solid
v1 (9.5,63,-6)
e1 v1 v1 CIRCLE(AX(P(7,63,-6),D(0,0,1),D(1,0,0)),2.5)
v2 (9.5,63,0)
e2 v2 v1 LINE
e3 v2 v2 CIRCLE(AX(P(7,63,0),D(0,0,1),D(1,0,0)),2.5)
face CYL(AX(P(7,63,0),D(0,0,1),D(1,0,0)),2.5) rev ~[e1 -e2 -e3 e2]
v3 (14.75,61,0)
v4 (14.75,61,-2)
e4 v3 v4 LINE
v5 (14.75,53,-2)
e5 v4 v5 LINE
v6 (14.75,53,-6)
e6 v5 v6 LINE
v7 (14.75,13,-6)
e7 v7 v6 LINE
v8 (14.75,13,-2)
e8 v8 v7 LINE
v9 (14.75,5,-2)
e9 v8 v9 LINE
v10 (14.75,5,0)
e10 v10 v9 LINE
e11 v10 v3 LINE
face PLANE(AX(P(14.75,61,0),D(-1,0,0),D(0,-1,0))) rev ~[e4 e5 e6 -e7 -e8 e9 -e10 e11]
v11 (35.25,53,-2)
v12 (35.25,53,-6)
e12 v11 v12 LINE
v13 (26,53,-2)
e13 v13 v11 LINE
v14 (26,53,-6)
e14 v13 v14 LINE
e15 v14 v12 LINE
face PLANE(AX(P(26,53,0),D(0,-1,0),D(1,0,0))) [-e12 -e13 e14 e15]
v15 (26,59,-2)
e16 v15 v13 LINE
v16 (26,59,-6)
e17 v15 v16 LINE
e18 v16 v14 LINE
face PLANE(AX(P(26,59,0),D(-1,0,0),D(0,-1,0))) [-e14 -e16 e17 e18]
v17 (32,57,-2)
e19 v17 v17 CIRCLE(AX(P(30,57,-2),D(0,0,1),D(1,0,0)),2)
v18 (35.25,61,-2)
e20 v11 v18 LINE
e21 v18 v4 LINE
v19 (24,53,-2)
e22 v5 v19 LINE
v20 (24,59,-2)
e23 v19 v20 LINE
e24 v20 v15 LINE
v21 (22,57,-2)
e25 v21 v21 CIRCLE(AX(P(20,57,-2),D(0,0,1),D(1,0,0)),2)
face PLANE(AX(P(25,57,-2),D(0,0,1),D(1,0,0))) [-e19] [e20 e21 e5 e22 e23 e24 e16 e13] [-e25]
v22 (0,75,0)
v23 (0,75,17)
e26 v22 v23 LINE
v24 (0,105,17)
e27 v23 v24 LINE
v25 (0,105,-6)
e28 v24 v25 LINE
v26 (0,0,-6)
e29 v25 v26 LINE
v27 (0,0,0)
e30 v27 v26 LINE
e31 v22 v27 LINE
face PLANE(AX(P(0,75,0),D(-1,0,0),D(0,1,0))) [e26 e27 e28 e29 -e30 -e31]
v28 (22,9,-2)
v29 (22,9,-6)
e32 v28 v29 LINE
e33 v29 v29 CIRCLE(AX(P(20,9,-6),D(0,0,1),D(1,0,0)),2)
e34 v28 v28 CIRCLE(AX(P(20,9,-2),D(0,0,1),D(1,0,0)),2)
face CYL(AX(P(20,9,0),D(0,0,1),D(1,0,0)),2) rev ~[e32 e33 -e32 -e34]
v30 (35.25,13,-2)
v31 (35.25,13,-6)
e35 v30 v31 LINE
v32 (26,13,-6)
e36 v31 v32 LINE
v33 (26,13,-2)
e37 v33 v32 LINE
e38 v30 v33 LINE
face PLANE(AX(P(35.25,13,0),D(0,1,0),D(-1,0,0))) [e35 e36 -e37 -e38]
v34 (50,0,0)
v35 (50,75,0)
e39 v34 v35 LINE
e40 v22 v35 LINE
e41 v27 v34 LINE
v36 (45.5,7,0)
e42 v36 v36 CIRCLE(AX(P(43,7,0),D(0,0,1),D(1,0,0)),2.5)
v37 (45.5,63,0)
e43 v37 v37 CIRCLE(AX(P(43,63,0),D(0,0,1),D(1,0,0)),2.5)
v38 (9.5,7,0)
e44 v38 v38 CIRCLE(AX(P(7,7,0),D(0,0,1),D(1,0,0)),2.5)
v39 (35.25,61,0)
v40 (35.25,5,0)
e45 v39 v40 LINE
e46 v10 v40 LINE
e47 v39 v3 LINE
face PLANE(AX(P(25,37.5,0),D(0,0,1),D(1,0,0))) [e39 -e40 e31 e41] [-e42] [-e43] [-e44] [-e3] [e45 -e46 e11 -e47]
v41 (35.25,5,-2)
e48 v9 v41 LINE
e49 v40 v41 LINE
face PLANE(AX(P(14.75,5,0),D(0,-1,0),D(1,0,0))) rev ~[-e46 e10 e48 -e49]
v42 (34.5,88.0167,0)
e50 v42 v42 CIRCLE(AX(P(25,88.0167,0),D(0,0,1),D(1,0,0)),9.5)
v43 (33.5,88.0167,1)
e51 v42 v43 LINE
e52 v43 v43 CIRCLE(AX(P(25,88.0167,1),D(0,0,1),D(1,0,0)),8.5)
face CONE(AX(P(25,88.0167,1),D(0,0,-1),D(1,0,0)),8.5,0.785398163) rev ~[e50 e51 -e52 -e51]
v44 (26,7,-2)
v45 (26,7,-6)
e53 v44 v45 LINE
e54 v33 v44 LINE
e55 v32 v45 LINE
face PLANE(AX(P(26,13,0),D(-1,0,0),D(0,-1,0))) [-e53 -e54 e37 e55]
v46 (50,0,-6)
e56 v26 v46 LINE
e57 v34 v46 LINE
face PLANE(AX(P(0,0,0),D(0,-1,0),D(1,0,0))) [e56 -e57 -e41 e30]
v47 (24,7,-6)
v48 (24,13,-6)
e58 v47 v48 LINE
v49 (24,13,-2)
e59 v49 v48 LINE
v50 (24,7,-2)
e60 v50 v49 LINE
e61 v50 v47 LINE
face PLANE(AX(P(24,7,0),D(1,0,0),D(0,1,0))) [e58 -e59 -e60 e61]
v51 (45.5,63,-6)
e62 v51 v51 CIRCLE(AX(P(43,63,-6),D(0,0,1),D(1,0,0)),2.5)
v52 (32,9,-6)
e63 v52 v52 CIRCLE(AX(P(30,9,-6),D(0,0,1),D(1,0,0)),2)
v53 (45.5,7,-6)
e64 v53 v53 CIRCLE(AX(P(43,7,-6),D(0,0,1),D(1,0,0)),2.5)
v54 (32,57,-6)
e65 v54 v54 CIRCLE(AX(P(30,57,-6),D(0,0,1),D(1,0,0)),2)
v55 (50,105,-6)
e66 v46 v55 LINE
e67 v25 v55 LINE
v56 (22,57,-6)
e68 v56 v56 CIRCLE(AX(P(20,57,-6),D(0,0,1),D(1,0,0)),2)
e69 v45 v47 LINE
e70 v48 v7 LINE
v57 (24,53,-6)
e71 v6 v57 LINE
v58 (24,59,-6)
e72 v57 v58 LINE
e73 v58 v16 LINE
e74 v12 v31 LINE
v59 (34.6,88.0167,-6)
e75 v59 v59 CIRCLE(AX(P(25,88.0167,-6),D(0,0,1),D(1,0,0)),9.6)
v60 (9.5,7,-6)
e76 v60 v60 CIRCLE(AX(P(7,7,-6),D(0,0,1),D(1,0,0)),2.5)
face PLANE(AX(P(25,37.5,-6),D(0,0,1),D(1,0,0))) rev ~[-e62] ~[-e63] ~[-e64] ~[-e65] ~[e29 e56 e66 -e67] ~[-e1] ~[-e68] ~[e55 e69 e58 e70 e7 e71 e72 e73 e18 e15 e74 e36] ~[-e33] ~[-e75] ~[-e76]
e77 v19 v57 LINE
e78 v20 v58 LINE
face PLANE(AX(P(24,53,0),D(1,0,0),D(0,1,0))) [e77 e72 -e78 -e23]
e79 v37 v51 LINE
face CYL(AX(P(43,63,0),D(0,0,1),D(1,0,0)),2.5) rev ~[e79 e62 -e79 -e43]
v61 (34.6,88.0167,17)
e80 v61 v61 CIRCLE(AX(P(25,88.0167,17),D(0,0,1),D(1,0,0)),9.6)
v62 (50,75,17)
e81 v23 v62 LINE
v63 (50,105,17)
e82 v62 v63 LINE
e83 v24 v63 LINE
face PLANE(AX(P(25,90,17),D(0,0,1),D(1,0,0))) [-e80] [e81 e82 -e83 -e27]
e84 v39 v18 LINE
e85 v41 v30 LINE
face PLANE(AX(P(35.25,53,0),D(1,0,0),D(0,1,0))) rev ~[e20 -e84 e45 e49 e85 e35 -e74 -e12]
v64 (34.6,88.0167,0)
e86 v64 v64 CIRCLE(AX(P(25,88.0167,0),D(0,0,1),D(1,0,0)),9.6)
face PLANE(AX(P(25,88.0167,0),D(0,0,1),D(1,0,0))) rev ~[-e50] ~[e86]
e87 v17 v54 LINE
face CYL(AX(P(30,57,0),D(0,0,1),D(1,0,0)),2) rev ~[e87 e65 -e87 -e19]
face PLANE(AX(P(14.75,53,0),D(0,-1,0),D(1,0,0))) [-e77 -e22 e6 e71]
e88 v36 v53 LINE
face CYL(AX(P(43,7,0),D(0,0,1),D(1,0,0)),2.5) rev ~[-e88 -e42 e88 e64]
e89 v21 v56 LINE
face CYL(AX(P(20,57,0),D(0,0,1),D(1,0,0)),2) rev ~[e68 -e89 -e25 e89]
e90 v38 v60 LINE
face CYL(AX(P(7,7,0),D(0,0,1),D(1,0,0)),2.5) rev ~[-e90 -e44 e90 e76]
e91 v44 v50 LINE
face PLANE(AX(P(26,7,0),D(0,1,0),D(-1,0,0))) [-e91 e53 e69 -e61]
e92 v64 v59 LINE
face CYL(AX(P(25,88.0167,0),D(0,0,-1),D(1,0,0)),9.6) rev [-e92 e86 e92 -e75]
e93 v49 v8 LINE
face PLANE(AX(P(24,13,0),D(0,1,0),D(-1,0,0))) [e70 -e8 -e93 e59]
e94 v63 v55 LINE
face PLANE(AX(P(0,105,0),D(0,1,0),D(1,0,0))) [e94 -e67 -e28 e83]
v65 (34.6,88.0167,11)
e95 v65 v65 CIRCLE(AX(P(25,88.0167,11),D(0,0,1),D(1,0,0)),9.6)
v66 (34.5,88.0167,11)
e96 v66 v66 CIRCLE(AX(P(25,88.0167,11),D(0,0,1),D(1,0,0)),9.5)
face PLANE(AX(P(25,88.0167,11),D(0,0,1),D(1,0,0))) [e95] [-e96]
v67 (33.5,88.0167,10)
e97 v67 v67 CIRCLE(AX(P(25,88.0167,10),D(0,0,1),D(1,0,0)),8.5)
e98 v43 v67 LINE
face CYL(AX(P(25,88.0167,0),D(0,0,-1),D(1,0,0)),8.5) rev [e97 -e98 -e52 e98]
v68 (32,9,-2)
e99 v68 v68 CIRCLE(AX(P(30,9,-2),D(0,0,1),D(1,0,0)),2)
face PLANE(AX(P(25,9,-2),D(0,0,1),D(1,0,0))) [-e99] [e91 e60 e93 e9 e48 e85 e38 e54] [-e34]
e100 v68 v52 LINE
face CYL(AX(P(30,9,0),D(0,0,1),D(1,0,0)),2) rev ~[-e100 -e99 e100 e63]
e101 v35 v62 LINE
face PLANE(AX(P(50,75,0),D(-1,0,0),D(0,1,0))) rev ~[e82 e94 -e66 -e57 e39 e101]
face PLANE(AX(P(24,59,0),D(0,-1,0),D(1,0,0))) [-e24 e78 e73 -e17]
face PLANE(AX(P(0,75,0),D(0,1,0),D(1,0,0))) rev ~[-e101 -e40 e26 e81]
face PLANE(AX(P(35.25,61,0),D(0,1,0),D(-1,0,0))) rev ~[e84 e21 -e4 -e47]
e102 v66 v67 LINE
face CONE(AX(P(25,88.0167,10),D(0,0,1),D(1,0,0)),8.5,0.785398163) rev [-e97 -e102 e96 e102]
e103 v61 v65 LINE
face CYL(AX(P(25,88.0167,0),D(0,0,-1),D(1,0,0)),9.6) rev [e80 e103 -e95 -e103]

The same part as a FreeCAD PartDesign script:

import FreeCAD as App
import Part
import Sketcher


def edges_at(feature, points):
    """Names of the edges that pass closest to the given points."""
    edges = feature.Shape.Edges
    near = lambda p: min(range(len(edges)), key=lambda i: edges[i].distToShape(Part.Vertex(*p))[0])
    return sorted({f"Edge{near(p) + 1}" for p in points})

doc = App.newDocument("Part")
body = doc.addObject("PartDesign::Body", "Body")

# Sketch on XY plane
sketch1 = body.newObject("Sketcher::SketchObject", "Sketch")
sketch1.AttachmentSupport = (doc.getObject("XY_Plane"), [""])
sketch1.MapMode = "FlatFace"
sketch1.addGeometry([
    Part.LineSegment(App.Vector(0, 0, 0), App.Vector(50, 0, 0)),  # 0
    Part.LineSegment(App.Vector(50, 0, 0), App.Vector(50, 105, 0)),  # 1
    Part.LineSegment(App.Vector(50, 105, 0), App.Vector(0, 105, 0)),  # 2
    Part.LineSegment(App.Vector(0, 105, 0), App.Vector(0, 0, 0)),  # 3
    Part.Circle(App.Vector(7, 7, 0), App.Vector(0, 0, 1), 2.5),  # 4
    Part.Circle(App.Vector(20, 9, 0), App.Vector(0, 0, 1), 2),  # 5
    Part.Circle(App.Vector(30, 9, 0), App.Vector(0, 0, 1), 2),  # 6
    Part.Circle(App.Vector(43, 7, 0), App.Vector(0, 0, 1), 2.5),  # 7
    Part.LineSegment(App.Vector(35.2, 53, 0), App.Vector(35.2, 13, 0)),  # 8
    Part.LineSegment(App.Vector(35.2, 13, 0), App.Vector(26, 13, 0)),  # 9
    Part.LineSegment(App.Vector(26, 13, 0), App.Vector(26, 7, 0)),  # 10
    Part.LineSegment(App.Vector(26, 7, 0), App.Vector(24, 7, 0)),  # 11
    Part.LineSegment(App.Vector(24, 7, 0), App.Vector(24, 13, 0)),  # 12
    Part.LineSegment(App.Vector(24, 13, 0), App.Vector(14.8, 13, 0)),  # 13
    Part.LineSegment(App.Vector(14.8, 13, 0), App.Vector(14.8, 53, 0)),  # 14
    Part.LineSegment(App.Vector(14.8, 53, 0), App.Vector(24, 53, 0)),  # 15
    Part.LineSegment(App.Vector(24, 53, 0), App.Vector(24, 59, 0)),  # 16
    Part.LineSegment(App.Vector(24, 59, 0), App.Vector(26, 59, 0)),  # 17
    Part.LineSegment(App.Vector(26, 59, 0), App.Vector(26, 53, 0)),  # 18
    Part.LineSegment(App.Vector(26, 53, 0), App.Vector(35.2, 53, 0)),  # 19
    Part.Circle(App.Vector(7, 63, 0), App.Vector(0, 0, 1), 2.5),  # 20
    Part.Circle(App.Vector(20, 57, 0), App.Vector(0, 0, 1), 2),  # 21
    Part.Circle(App.Vector(30, 57, 0), App.Vector(0, 0, 1), 2),  # 22
    Part.Circle(App.Vector(43, 63, 0), App.Vector(0, 0, 1), 2.5),  # 23
    Part.Circle(App.Vector(25, 88, 0), App.Vector(0, 0, 1), 9.6),  # 24
], False)
sketch1.addConstraint([
    Sketcher.Constraint("Coincident", 0, 2, 1, 1),
    Sketcher.Constraint("Coincident", 1, 2, 2, 1),
    Sketcher.Constraint("Coincident", 2, 2, 3, 1),
    Sketcher.Constraint("Coincident", 3, 2, 0, 1),
    Sketcher.Constraint("Coincident", 8, 2, 9, 1),
    Sketcher.Constraint("Coincident", 9, 2, 10, 1),
    Sketcher.Constraint("Coincident", 10, 2, 11, 1),
    Sketcher.Constraint("Coincident", 11, 2, 12, 1),
    Sketcher.Constraint("Coincident", 12, 2, 13, 1),
    Sketcher.Constraint("Coincident", 13, 2, 14, 1),
    Sketcher.Constraint("Coincident", 14, 2, 15, 1),
    Sketcher.Constraint("Coincident", 15, 2, 16, 1),
    Sketcher.Constraint("Coincident", 16, 2, 17, 1),
    Sketcher.Constraint("Coincident", 17, 2, 18, 1),
    Sketcher.Constraint("Coincident", 18, 2, 19, 1),
    Sketcher.Constraint("Coincident", 19, 2, 8, 1),
    Sketcher.Constraint("Horizontal", 0),
    Sketcher.Constraint("Vertical", 1),
    Sketcher.Constraint("Horizontal", 2),
    Sketcher.Constraint("Vertical", 3),
    Sketcher.Constraint("Vertical", 8),
    Sketcher.Constraint("Horizontal", 9),
    Sketcher.Constraint("Vertical", 10),
    Sketcher.Constraint("Horizontal", 11),
    Sketcher.Constraint("Vertical", 12),
    Sketcher.Constraint("Horizontal", 13),
    Sketcher.Constraint("Vertical", 14),
    Sketcher.Constraint("Horizontal", 15),
    Sketcher.Constraint("Vertical", 16),
    Sketcher.Constraint("Horizontal", 17),
    Sketcher.Constraint("Vertical", 18),
    Sketcher.Constraint("Horizontal", 19),
    Sketcher.Constraint("Coincident", 3, 2, -1, 1),
    Sketcher.Constraint("Equal", 5, 6),
    Sketcher.Constraint("Equal", 4, 7),
    Sketcher.Constraint("Equal", 7, 20),
    Sketcher.Constraint("Equal", 6, 21),
    Sketcher.Constraint("Equal", 21, 22),
    Sketcher.Constraint("Equal", 20, 23),
    Sketcher.Constraint("Horizontal", 5, 3, 6, 3),
    Sketcher.Constraint("Horizontal", 4, 3, 7, 3),
    Sketcher.Constraint("Horizontal", 21, 3, 22, 3),
    Sketcher.Constraint("Horizontal", 20, 3, 23, 3),
    Sketcher.Constraint("Horizontal", 7, 3, 10, 2),
    Sketcher.Constraint("Horizontal", 9, 2, 12, 2),
    Sketcher.Constraint("Horizontal", 15, 2, 18, 2),
    Sketcher.Constraint("Vertical", 4, 3, 20, 3),
    Sketcher.Constraint("Vertical", 5, 3, 21, 3),
    Sketcher.Constraint("Vertical", 6, 3, 22, 3),
    Sketcher.Constraint("Vertical", 7, 3, 23, 3),
    Sketcher.Constraint("Vertical", 12, 2, 15, 2),
    Sketcher.Constraint("Vertical", 10, 2, 17, 2),
    Sketcher.Constraint("Equal", 9, 13),
    Sketcher.Constraint("Equal", 12, 16),
    Sketcher.Constraint("Diameter", 4, 5.0),
    Sketcher.Constraint("Diameter", 5, 4.0),
    Sketcher.Constraint("Diameter", 24, 19.2),
    Sketcher.Constraint("DistanceX", 0, 1, 0, 2, 50.0),
    Sketcher.Constraint("DistanceX", 11, 2, 11, 1, 2.0),
    Sketcher.Constraint("DistanceY", 1, 1, 1, 2, 105.0),
    Sketcher.Constraint("DistanceY", 8, 2, 8, 1, 40.0),
    Sketcher.Constraint("DistanceY", 10, 2, 10, 1, 6.0),
    Sketcher.Constraint("DistanceX", -1, 1, 4, 3, 7.0),
    Sketcher.Constraint("DistanceY", -1, 1, 4, 3, 7.0),
    Sketcher.Constraint("DistanceX", -1, 1, 5, 3, 20.0),
    Sketcher.Constraint("DistanceY", -1, 1, 5, 3, 9.0),
    Sketcher.Constraint("DistanceX", -1, 1, 6, 3, 30.0),
    Sketcher.Constraint("DistanceX", -1, 1, 7, 3, 43.0),
    Sketcher.Constraint("DistanceY", -1, 1, 20, 3, 63.0),
    Sketcher.Constraint("DistanceY", -1, 1, 21, 3, 57.0),
    Sketcher.Constraint("DistanceX", -1, 1, 24, 3, 25.0),
    Sketcher.Constraint("DistanceX", -1, 1, 9, 2, 26.0),
    Sketcher.Constraint("DistanceX", 9, 2, 9, 1, 9.25),
    Sketcher.Constraint("DistanceY", -1, 1, 24, 3, 88.0167),
])
pad1 = body.newObject("PartDesign::Pad", "Pad")
pad1.Profile = sketch1
pad1.Length = 6
pad1.Reversed = True

# Sketch on XY plane
sketch2 = body.newObject("Sketcher::SketchObject", "Sketch001")
sketch2.AttachmentSupport = (doc.getObject("XY_Plane"), [""])
sketch2.MapMode = "FlatFace"
sketch2.addGeometry([
    Part.LineSegment(App.Vector(14.8, 61, 0), App.Vector(14.8, 53, 0)),  # 0
    Part.LineSegment(App.Vector(14.8, 53, 0), App.Vector(24, 53, 0)),  # 1
    Part.LineSegment(App.Vector(24, 53, 0), App.Vector(24, 59, 0)),  # 2
    Part.LineSegment(App.Vector(24, 59, 0), App.Vector(26, 59, 0)),  # 3
    Part.LineSegment(App.Vector(26, 59, 0), App.Vector(26, 53, 0)),  # 4
    Part.LineSegment(App.Vector(26, 53, 0), App.Vector(35.2, 53, 0)),  # 5
    Part.LineSegment(App.Vector(35.2, 53, 0), App.Vector(35.2, 61, 0)),  # 6
    Part.LineSegment(App.Vector(35.2, 61, 0), App.Vector(14.8, 61, 0)),  # 7
    Part.Circle(App.Vector(20, 57, 0), App.Vector(0, 0, 1), 2),  # 8
    Part.Circle(App.Vector(30, 57, 0), App.Vector(0, 0, 1), 2),  # 9
    Part.LineSegment(App.Vector(14.8, 13, 0), App.Vector(14.8, 5, 0)),  # 10
    Part.LineSegment(App.Vector(14.8, 5, 0), App.Vector(35.2, 5, 0)),  # 11
    Part.LineSegment(App.Vector(35.2, 5, 0), App.Vector(35.2, 13, 0)),  # 12
    Part.LineSegment(App.Vector(35.2, 13, 0), App.Vector(26, 13, 0)),  # 13
    Part.LineSegment(App.Vector(26, 13, 0), App.Vector(26, 7, 0)),  # 14
    Part.LineSegment(App.Vector(26, 7, 0), App.Vector(24, 7, 0)),  # 15
    Part.LineSegment(App.Vector(24, 7, 0), App.Vector(24, 13, 0)),  # 16
    Part.LineSegment(App.Vector(24, 13, 0), App.Vector(14.8, 13, 0)),  # 17
    Part.Circle(App.Vector(20, 9, 0), App.Vector(0, 0, 1), 2),  # 18
    Part.Circle(App.Vector(30, 9, 0), App.Vector(0, 0, 1), 2),  # 19
], False)
sketch2.addConstraint([
    Sketcher.Constraint("Coincident", 0, 2, 1, 1),
    Sketcher.Constraint("Coincident", 1, 2, 2, 1),
    Sketcher.Constraint("Coincident", 2, 2, 3, 1),
    Sketcher.Constraint("Coincident", 3, 2, 4, 1),
    Sketcher.Constraint("Coincident", 4, 2, 5, 1),
    Sketcher.Constraint("Coincident", 5, 2, 6, 1),
    Sketcher.Constraint("Coincident", 6, 2, 7, 1),
    Sketcher.Constraint("Coincident", 7, 2, 0, 1),
    Sketcher.Constraint("Coincident", 10, 2, 11, 1),
    Sketcher.Constraint("Coincident", 11, 2, 12, 1),
    Sketcher.Constraint("Coincident", 12, 2, 13, 1),
    Sketcher.Constraint("Coincident", 13, 2, 14, 1),
    Sketcher.Constraint("Coincident", 14, 2, 15, 1),
    Sketcher.Constraint("Coincident", 15, 2, 16, 1),
    Sketcher.Constraint("Coincident", 16, 2, 17, 1),
    Sketcher.Constraint("Coincident", 17, 2, 10, 1),
    Sketcher.Constraint("Vertical", 0),
    Sketcher.Constraint("Horizontal", 1),
    Sketcher.Constraint("Vertical", 2),
    Sketcher.Constraint("Horizontal", 3),
    Sketcher.Constraint("Vertical", 4),
    Sketcher.Constraint("Horizontal", 5),
    Sketcher.Constraint("Vertical", 6),
    Sketcher.Constraint("Horizontal", 7),
    Sketcher.Constraint("Vertical", 10),
    Sketcher.Constraint("Horizontal", 11),
    Sketcher.Constraint("Vertical", 12),
    Sketcher.Constraint("Horizontal", 13),
    Sketcher.Constraint("Vertical", 14),
    Sketcher.Constraint("Horizontal", 15),
    Sketcher.Constraint("Vertical", 16),
    Sketcher.Constraint("Horizontal", 17),
    Sketcher.Constraint("Equal", 8, 9),
    Sketcher.Constraint("Equal", 9, 18),
    Sketcher.Constraint("Equal", 18, 19),
    Sketcher.Constraint("Horizontal", 8, 3, 9, 3),
    Sketcher.Constraint("Horizontal", 18, 3, 19, 3),
    Sketcher.Constraint("Horizontal", 1, 2, 4, 2),
    Sketcher.Constraint("Horizontal", 13, 2, 16, 2),
    Sketcher.Constraint("Vertical", 8, 3, 18, 3),
    Sketcher.Constraint("Vertical", 9, 3, 19, 3),
    Sketcher.Constraint("Vertical", 7, 2, 10, 2),
    Sketcher.Constraint("Vertical", 6, 2, 11, 2),
    Sketcher.Constraint("Vertical", 4, 2, 13, 2),
    Sketcher.Constraint("Vertical", 2, 2, 15, 2),
    Sketcher.Constraint("Equal", 1, 5),
    Sketcher.Constraint("Equal", 6, 10),
    Sketcher.Constraint("Equal", 4, 14),
    Sketcher.Constraint("Diameter", 8, 4.0),
    Sketcher.Constraint("DistanceX", 3, 1, 3, 2, 2.0),
    Sketcher.Constraint("DistanceY", 0, 2, 0, 1, 8.0),
    Sketcher.Constraint("DistanceY", 2, 1, 2, 2, 6.0),
    Sketcher.Constraint("DistanceX", 7, 2, 7, 1, 20.5),
    Sketcher.Constraint("DistanceX", -1, 1, 8, 3, 20.0),
    Sketcher.Constraint("DistanceY", -1, 1, 8, 3, 57.0),
    Sketcher.Constraint("DistanceX", -1, 1, 9, 3, 30.0),
    Sketcher.Constraint("DistanceY", -1, 1, 18, 3, 9.0),
    Sketcher.Constraint("DistanceY", -1, 1, 0, 2, 53.0),
    Sketcher.Constraint("DistanceX", -1, 1, 1, 2, 24.0),
    Sketcher.Constraint("DistanceY", -1, 1, 10, 2, 5.0),
])
pocket1 = body.newObject("PartDesign::Pocket", "Pocket")
pocket1.Profile = sketch2
pocket1.Length = 2

# Sketch on XY plane
sketch3 = body.newObject("Sketcher::SketchObject", "Sketch002")
sketch3.AttachmentSupport = (doc.getObject("XY_Plane"), [""])
sketch3.MapMode = "FlatFace"
sketch3.addGeometry([
    Part.LineSegment(App.Vector(0, 105, 0), App.Vector(0, 75, 0)),  # 0
    Part.LineSegment(App.Vector(0, 75, 0), App.Vector(50, 75, 0)),  # 1
    Part.LineSegment(App.Vector(50, 75, 0), App.Vector(50, 105, 0)),  # 2
    Part.LineSegment(App.Vector(50, 105, 0), App.Vector(0, 105, 0)),  # 3
    Part.Circle(App.Vector(25, 88, 0), App.Vector(0, 0, 1), 10),  # 4
], False)
sketch3.addConstraint([
    Sketcher.Constraint("Coincident", 0, 2, 1, 1),
    Sketcher.Constraint("Coincident", 1, 2, 2, 1),
    Sketcher.Constraint("Coincident", 2, 2, 3, 1),
    Sketcher.Constraint("Coincident", 3, 2, 0, 1),
    Sketcher.Constraint("Vertical", 0),
    Sketcher.Constraint("Horizontal", 1),
    Sketcher.Constraint("Vertical", 2),
    Sketcher.Constraint("Horizontal", 3),
    Sketcher.Constraint("PointOnObject", 0, 2, -2),
    Sketcher.Constraint("Diameter", 4, 19.2),
    Sketcher.Constraint("DistanceX", 1, 1, 1, 2, 50.0),
    Sketcher.Constraint("DistanceY", 0, 2, 0, 1, 30.0),
    Sketcher.Constraint("DistanceX", -1, 1, 4, 3, 25.0),
    Sketcher.Constraint("DistanceY", -1, 1, 0, 2, 75.0),
    Sketcher.Constraint("DistanceY", -1, 1, 4, 3, 88.0167),
])
pad2 = body.newObject("PartDesign::Pad", "Pad001")
pad2.Profile = sketch3
pad2.Length = 17

# Sketch on XY plane
sketch4 = body.newObject("Sketcher::SketchObject", "Sketch003")
sketch4.AttachmentSupport = (doc.getObject("XY_Plane"), [""])
sketch4.MapMode = "FlatFace"
sketch4.addGeometry([
    Part.Circle(App.Vector(25, 88, 0), App.Vector(0, 0, 1), 10),
    Part.Circle(App.Vector(25, 88, 0), App.Vector(0, 0, 1), 8),
], False)
sketch4.addConstraint([
    Sketcher.Constraint("Coincident", 1, 3, 0, 3),
    Sketcher.Constraint("Diameter", 1, 17.0),
    Sketcher.Constraint("Diameter", 0, 19.2),
    Sketcher.Constraint("DistanceX", -1, 1, 0, 3, 25.0),
    Sketcher.Constraint("DistanceY", -1, 1, 0, 3, 88.0167),
])
pad3 = body.newObject("PartDesign::Pad", "Pad002")
pad3.Profile = sketch4
pad3.Length = 11
doc.recompute()

chamfer = body.newObject("PartDesign::Chamfer", "Chamfer")
chamfer.Base = (pad3, edges_at(pad3, [(16.5, 88.017, 11), (16.5, 88.017, 0)]))
chamfer.Size = 1

doc.recompute()
